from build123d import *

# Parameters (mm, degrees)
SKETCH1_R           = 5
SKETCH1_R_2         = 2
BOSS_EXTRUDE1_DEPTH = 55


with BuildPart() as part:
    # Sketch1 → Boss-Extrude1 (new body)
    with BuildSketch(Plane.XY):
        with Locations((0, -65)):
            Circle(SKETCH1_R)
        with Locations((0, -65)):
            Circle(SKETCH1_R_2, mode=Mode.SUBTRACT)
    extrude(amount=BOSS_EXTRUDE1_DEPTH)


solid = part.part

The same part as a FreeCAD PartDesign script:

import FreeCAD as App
import Part
import Sketcher
Q = App.Units.Quantity

doc = App.newDocument("Part")
body = doc.addObject("PartDesign::Body", "Body")

# Sketch on XY plane
sketch1 = body.newObject("Sketcher::SketchObject", "Sketch")
sketch1.AttachmentSupport = (doc.getObject("XY_Plane"), [""])
sketch1.MapMode = "FlatFace"
sketch1.addGeometry(Part.Circle(App.Vector(0, -65, 0), App.Vector(0, 0, 1), 5), False)
sketch1.addGeometry(Part.Circle(App.Vector(0, -65, 0), App.Vector(0, 0, 1), 2), False)
sketch1.addConstraint(Sketcher.Constraint("Coincident", 1, 3, 0, 3))
sketch1.addConstraint(Sketcher.Constraint("PointOnObject", 0, 3, -2))
sketch1.addConstraint(Sketcher.Constraint("Diameter", 0, Q("10 mm")))
sketch1.addConstraint(Sketcher.Constraint("Diameter", 1, Q("4 mm")))
sketch1.addConstraint(Sketcher.Constraint("DistanceY", 0, 3, -1, 1, Q("65 mm")))
pad1 = body.newObject("PartDesign::Pad", "Pad")
pad1.Profile = sketch1
pad1.Length = 55

doc.recompute()
